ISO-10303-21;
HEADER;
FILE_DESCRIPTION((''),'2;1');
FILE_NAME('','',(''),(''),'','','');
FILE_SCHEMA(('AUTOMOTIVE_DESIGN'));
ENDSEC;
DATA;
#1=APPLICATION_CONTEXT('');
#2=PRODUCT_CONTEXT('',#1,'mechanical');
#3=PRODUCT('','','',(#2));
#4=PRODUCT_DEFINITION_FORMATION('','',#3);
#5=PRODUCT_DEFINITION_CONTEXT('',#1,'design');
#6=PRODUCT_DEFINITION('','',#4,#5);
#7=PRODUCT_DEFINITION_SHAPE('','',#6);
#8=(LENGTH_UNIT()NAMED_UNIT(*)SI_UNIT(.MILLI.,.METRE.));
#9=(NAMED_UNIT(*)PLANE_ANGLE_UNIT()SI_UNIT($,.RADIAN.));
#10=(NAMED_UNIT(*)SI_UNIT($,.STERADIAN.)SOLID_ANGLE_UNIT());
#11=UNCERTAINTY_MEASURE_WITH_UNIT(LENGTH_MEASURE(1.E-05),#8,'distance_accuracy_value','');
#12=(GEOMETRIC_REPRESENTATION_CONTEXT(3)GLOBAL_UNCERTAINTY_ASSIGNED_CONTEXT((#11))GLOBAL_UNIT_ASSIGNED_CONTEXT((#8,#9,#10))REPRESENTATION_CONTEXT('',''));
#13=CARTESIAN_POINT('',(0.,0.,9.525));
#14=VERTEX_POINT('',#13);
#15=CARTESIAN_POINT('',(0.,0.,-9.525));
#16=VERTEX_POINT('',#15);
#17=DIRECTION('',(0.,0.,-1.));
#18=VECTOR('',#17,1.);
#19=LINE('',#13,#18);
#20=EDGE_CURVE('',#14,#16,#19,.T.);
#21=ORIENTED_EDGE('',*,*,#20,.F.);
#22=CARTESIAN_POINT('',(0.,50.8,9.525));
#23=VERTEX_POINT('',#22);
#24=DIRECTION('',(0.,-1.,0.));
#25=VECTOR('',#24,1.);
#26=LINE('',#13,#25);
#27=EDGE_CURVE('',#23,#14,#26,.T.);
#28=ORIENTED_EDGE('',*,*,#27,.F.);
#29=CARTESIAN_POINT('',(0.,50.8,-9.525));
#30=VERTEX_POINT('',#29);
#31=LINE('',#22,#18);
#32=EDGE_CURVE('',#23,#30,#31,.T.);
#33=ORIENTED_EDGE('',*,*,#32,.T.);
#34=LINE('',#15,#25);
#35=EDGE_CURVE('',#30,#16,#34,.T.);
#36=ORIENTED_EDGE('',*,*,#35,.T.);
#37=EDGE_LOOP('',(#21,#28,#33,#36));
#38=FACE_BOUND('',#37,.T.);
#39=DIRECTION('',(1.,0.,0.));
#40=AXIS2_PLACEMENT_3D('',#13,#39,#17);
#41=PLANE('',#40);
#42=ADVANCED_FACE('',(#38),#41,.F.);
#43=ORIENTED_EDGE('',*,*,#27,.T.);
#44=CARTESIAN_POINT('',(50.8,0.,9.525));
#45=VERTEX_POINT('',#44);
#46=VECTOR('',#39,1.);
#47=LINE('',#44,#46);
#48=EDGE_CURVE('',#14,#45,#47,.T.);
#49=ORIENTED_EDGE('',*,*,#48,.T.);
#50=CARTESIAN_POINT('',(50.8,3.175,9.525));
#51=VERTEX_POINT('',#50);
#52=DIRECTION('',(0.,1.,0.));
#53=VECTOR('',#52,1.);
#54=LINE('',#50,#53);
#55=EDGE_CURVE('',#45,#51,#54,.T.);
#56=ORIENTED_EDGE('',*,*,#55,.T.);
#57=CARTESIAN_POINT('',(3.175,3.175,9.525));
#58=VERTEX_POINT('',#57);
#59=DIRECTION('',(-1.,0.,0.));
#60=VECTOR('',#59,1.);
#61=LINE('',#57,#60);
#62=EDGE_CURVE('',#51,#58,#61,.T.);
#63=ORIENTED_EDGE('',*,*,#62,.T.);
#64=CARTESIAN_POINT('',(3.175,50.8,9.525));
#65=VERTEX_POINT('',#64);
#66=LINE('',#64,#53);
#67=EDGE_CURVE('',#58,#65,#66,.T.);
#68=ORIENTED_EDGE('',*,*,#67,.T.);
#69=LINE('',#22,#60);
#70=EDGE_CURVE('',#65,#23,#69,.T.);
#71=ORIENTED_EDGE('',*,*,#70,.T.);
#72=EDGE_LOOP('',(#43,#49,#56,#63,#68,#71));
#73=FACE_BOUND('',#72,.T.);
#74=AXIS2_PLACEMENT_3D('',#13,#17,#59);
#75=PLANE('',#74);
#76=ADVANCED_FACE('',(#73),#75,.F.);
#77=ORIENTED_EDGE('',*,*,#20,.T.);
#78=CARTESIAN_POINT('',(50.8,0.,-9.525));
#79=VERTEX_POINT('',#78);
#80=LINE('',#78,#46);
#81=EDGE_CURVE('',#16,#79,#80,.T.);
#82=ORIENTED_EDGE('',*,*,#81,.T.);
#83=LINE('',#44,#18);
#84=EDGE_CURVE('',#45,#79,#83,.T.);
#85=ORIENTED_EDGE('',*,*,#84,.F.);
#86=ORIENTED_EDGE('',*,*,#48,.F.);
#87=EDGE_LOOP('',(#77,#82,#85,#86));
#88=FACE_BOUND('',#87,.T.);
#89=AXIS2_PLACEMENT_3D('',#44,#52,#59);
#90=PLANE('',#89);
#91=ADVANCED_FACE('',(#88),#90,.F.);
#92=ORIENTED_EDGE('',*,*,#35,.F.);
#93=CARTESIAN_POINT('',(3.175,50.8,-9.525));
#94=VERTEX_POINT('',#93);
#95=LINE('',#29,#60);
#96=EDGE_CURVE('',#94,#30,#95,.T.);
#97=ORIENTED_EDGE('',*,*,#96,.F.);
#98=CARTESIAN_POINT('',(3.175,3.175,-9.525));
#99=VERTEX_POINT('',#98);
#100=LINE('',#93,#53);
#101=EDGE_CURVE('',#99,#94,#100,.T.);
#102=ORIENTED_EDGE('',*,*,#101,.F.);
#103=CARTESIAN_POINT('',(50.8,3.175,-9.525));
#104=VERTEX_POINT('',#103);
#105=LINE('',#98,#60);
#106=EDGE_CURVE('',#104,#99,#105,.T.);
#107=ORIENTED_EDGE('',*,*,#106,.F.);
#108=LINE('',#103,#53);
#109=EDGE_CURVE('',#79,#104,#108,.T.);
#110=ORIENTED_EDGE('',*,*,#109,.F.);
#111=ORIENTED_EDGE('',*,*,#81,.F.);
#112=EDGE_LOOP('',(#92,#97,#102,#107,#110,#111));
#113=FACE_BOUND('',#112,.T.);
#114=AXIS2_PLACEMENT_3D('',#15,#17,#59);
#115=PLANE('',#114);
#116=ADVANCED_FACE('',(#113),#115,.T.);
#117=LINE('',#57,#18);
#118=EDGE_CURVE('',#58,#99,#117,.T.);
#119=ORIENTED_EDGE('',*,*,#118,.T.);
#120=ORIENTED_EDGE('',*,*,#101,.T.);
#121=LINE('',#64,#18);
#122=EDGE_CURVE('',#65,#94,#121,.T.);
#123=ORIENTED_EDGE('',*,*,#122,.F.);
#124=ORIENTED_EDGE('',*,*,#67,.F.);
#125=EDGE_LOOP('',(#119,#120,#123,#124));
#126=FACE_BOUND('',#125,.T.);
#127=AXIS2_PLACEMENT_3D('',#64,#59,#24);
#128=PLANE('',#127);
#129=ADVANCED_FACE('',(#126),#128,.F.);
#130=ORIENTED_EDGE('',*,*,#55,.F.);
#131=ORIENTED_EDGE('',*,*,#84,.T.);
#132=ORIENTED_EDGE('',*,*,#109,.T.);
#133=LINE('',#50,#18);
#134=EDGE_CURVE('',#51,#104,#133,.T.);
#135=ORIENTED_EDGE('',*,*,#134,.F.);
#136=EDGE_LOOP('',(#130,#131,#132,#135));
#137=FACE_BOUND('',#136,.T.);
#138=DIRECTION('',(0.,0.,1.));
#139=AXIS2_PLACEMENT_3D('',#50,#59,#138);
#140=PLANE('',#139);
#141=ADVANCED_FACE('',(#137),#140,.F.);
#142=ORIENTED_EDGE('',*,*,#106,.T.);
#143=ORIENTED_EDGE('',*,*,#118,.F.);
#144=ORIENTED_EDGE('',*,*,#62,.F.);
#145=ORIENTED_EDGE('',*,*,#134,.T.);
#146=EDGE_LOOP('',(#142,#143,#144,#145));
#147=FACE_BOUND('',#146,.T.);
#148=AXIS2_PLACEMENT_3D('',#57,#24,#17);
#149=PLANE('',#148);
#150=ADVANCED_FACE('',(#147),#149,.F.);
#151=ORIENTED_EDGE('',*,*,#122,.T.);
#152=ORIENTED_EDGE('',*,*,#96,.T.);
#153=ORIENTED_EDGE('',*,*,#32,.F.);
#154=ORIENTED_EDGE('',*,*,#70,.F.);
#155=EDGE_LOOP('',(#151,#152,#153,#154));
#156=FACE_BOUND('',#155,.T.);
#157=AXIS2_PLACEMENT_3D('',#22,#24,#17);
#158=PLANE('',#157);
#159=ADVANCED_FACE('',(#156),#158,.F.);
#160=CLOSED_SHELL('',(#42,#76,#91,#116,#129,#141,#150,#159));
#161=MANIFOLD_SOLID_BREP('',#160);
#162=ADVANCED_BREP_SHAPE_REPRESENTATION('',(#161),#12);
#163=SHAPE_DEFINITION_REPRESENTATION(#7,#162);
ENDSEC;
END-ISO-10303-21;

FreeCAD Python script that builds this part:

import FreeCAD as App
import Part
import Sketcher
from FreeCAD import Vector
Q = App.Units.Quantity

doc = App.newDocument("Part")
body = doc.addObject("PartDesign::Body", "Body")

# Sketch on XY plane
sketch1 = body.newObject("Sketcher::SketchObject", "Sketch")
sketch1.AttachmentSupport = (doc.getObject("XY_Plane"), [""])
sketch1.MapMode = "FlatFace"
sketch1.addGeometry(Part.LineSegment(Vector(0, 50.8, 0), Vector(0, 0, 0)), False)
sketch1.addGeometry(Part.LineSegment(Vector(0, 0, 0), Vector(50.8, 0, 0)), False)
sketch1.addGeometry(Part.LineSegment(Vector(50.8, 0, 0), Vector(50.8, 3.2, 0)), False)
sketch1.addGeometry(Part.LineSegment(Vector(50.8, 3.2, 0), Vector(3.2, 3.2, 0)), False)
sketch1.addGeometry(Part.LineSegment(Vector(3.2, 3.2, 0), Vector(3.2, 50.8, 0)), False)
sketch1.addGeometry(Part.LineSegment(Vector(3.2, 50.8, 0), Vector(0, 50.8, 0)), False)
sketch1.addConstraint(Sketcher.Constraint("Coincident", 0, 2, 1, 1))
sketch1.addConstraint(Sketcher.Constraint("Coincident", 1, 2, 2, 1))
sketch1.addConstraint(Sketcher.Constraint("Coincident", 2, 2, 3, 1))
sketch1.addConstraint(Sketcher.Constraint("Coincident", 3, 2, 4, 1))
sketch1.addConstraint(Sketcher.Constraint("Coincident", 4, 2, 5, 1))
sketch1.addConstraint(Sketcher.Constraint("Coincident", 5, 2, 0, 1))
sketch1.addConstraint(Sketcher.Constraint("Vertical", 0))
sketch1.addConstraint(Sketcher.Constraint("Horizontal", 1))
sketch1.addConstraint(Sketcher.Constraint("Vertical", 2))
sketch1.addConstraint(Sketcher.Constraint("Horizontal", 3))
sketch1.addConstraint(Sketcher.Constraint("Vertical", 4))
sketch1.addConstraint(Sketcher.Constraint("Horizontal", 5))
sketch1.addConstraint(Sketcher.Constraint("Coincident", 0, 2, -1, 1))
sketch1.addConstraint(Sketcher.Constraint("Equal", 1, 0))
sketch1.addConstraint(Sketcher.Constraint("Equal", 5, 2))
sketch1.addConstraint(Sketcher.Constraint("DistanceX", 1, 1, 1, 2, Q("2 in")))
sketch1.addConstraint(Sketcher.Constraint("DistanceX", 3, 2, 3, 1, Q("1.875 in")))
pad1 = body.newObject("PartDesign::Pad", "Pad")
pad1.Profile = sketch1
pad1.Length = Q("0.75 in")
pad1.Midplane = True

doc.recompute()
